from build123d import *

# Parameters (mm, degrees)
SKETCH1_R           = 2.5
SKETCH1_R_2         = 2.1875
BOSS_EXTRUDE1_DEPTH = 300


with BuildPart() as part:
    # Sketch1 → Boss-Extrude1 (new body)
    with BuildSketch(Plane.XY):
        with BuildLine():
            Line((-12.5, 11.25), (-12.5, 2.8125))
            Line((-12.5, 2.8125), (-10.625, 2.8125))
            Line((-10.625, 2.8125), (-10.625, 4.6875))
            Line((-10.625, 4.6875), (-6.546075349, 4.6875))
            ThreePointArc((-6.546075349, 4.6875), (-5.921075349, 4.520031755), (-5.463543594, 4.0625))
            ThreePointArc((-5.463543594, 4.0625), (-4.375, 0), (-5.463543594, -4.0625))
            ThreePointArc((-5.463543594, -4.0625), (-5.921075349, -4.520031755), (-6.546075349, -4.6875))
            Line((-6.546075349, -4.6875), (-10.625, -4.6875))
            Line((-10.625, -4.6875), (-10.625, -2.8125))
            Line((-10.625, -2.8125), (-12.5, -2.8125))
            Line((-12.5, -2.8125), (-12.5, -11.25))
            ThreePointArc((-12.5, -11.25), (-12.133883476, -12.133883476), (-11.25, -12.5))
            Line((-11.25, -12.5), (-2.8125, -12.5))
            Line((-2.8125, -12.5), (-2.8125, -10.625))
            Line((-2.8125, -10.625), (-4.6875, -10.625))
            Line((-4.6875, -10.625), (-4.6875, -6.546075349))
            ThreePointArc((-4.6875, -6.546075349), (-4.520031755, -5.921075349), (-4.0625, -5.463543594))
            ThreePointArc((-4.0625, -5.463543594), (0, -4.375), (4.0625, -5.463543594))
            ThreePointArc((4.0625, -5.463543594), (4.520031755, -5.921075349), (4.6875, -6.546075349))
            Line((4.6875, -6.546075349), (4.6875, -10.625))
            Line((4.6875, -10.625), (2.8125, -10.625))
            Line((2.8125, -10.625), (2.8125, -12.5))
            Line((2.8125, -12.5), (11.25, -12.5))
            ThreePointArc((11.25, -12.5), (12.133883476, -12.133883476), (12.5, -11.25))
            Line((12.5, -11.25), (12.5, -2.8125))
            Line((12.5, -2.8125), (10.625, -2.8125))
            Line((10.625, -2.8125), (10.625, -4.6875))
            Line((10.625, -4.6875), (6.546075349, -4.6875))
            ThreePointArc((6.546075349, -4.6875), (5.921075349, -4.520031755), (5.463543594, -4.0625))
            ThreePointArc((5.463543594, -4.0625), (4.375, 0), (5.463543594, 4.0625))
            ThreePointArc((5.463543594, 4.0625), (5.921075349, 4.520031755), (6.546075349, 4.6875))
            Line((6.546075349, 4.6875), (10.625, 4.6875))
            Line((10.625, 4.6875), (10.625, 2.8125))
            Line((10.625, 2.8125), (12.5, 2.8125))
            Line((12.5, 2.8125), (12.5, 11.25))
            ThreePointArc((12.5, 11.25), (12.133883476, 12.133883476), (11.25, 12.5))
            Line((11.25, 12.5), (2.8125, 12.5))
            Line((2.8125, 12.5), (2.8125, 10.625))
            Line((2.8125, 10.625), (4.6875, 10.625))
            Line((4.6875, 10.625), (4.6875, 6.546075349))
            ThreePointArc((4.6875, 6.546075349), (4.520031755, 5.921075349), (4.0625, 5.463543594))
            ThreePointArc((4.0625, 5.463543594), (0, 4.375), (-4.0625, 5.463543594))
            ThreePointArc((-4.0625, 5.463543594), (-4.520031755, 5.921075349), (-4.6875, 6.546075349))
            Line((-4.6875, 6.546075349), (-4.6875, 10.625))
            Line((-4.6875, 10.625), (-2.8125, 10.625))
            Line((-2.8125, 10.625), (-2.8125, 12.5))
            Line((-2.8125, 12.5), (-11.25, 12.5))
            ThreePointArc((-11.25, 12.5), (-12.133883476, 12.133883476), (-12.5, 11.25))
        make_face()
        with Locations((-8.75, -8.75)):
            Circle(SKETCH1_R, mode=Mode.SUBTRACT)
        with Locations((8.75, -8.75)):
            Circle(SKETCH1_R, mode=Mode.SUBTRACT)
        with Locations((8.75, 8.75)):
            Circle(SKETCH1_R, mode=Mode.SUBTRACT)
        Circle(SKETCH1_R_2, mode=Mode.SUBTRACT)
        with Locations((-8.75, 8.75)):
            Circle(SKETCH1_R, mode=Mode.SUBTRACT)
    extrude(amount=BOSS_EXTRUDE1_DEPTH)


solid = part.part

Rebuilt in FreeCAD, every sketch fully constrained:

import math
import FreeCAD as App
import Part
import Sketcher

V = App.Vector
Q = App.Units.Quantity

doc = App.newDocument("Part")
body = doc.addObject("PartDesign::Body", "Body")

sketch1 = body.newObject("Sketcher::SketchObject", "Sketch")
sketch1.AttachmentSupport = (doc.getObject("XY_Plane"), [""])
sketch1.MapMode = "FlatFace"
sketch1.addGeometry(Part.LineSegment(V(-12.5, 11.2, 0), V(-12.5, 2.8, 0)), False)
sketch1.addGeometry(Part.LineSegment(V(-12.5, 2.8, 0), V(-10.6, 2.8, 0)), False)
sketch1.addGeometry(Part.LineSegment(V(-10.6, 2.8, 0), V(-10.6, 4.7, 0)), False)
sketch1.addGeometry(Part.LineSegment(V(-10.6, 4.7, 0), V(-6.5, 4.7, 0)), False)
sketch1.addGeometry(Part.ArcOfCircle(Part.Circle(V(-6.5, 3.4, 0), V(0, 0, 1), 1.2), math.radians(30), math.radians(90)), False)
sketch1.addGeometry(Part.ArcOfCircle(Part.Circle(V(-12.5, 0, 0), V(0, 0, 1), 8.1), math.radians(-30), math.radians(30)), False)
sketch1.addGeometry(Part.ArcOfCircle(Part.Circle(V(-6.5, -3.4, 0), V(0, 0, 1), 1.2), math.radians(-90), math.radians(-30)), False)
sketch1.addGeometry(Part.LineSegment(V(-6.5, -4.7, 0), V(-10.6, -4.7, 0)), False)
sketch1.addGeometry(Part.LineSegment(V(-10.6, -4.7, 0), V(-10.6, -2.8, 0)), False)
sketch1.addGeometry(Part.LineSegment(V(-10.6, -2.8, 0), V(-12.5, -2.8, 0)), False)
sketch1.addGeometry(Part.LineSegment(V(-12.5, -2.8, 0), V(-12.5, -11.2, 0)), False)
sketch1.addGeometry(Part.ArcOfCircle(Part.Circle(V(-11.2, -11.2, 0), V(0, 0, 1), 1.3), math.radians(-180), math.radians(-90)), False)
sketch1.addGeometry(Part.LineSegment(V(-11.2, -12.5, 0), V(-2.8, -12.5, 0)), False)
sketch1.addGeometry(Part.LineSegment(V(-2.8, -12.5, 0), V(-2.8, -10.6, 0)), False)
sketch1.addGeometry(Part.LineSegment(V(-2.8, -10.6, 0), V(-4.7, -10.6, 0)), False)
sketch1.addGeometry(Part.LineSegment(V(-4.7, -10.6, 0), V(-4.7, -6.5, 0)), False)
sketch1.addGeometry(Part.ArcOfCircle(Part.Circle(V(-3.4, -6.5, 0), V(0, 0, 1), 1.2), math.radians(120), math.radians(180)), False)
sketch1.addGeometry(Part.ArcOfCircle(Part.Circle(V(0, -12.5, 0), V(0, 0, 1), 8.1), math.radians(60), math.radians(120)), False)
sketch1.addGeometry(Part.ArcOfCircle(Part.Circle(V(3.4, -6.5, 0), V(0, 0, 1), 1.2), math.radians(0), math.radians(60)), False)
sketch1.addGeometry(Part.LineSegment(V(4.7, -6.5, 0), V(4.7, -10.6, 0)), False)
sketch1.addGeometry(Part.LineSegment(V(4.7, -10.6, 0), V(2.8, -10.6, 0)), False)
sketch1.addGeometry(Part.LineSegment(V(2.8, -10.6, 0), V(2.8, -12.5, 0)), False)
sketch1.addGeometry(Part.LineSegment(V(2.8, -12.5, 0), V(11.2, -12.5, 0)), False)
sketch1.addGeometry(Part.ArcOfCircle(Part.Circle(V(11.2, -11.2, 0), V(0, 0, 1), 1.3), math.radians(-90), math.radians(0)), False)
sketch1.addGeometry(Part.LineSegment(V(12.5, -11.2, 0), V(12.5, -2.8, 0)), False)
sketch1.addGeometry(Part.LineSegment(V(12.5, -2.8, 0), V(10.6, -2.8, 0)), False)
sketch1.addGeometry(Part.LineSegment(V(10.6, -2.8, 0), V(10.6, -4.7, 0)), False)
sketch1.addGeometry(Part.LineSegment(V(10.6, -4.7, 0), V(6.5, -4.7, 0)), False)
sketch1.addGeometry(Part.ArcOfCircle(Part.Circle(V(6.5, -3.4, 0), V(0, 0, 1), 1.2), math.radians(-150), math.radians(-90)), False)
sketch1.addGeometry(Part.ArcOfCircle(Part.Circle(V(12.5, 0, 0), V(0, 0, 1), 8.1), math.radians(150), math.radians(210)), False)
sketch1.addGeometry(Part.ArcOfCircle(Part.Circle(V(6.5, 3.4, 0), V(0, 0, 1), 1.2), math.radians(90), math.radians(150)), False)
sketch1.addGeometry(Part.LineSegment(V(6.5, 4.7, 0), V(10.6, 4.7, 0)), False)
sketch1.addGeometry(Part.LineSegment(V(10.6, 4.7, 0), V(10.6, 2.8, 0)), False)
sketch1.addGeometry(Part.LineSegment(V(10.6, 2.8, 0), V(12.5, 2.8, 0)), False)
sketch1.addGeometry(Part.LineSegment(V(12.5, 2.8, 0), V(12.5, 11.2, 0)), False)
sketch1.addGeometry(Part.ArcOfCircle(Part.Circle(V(11.2, 11.2, 0), V(0, 0, 1), 1.3), math.radians(0), math.radians(90)), False)
sketch1.addGeometry(Part.LineSegment(V(11.2, 12.5, 0), V(2.8, 12.5, 0)), False)
sketch1.addGeometry(Part.LineSegment(V(2.8, 12.5, 0), V(2.8, 10.6, 0)), False)
sketch1.addGeometry(Part.LineSegment(V(2.8, 10.6, 0), V(4.7, 10.6, 0)), False)
sketch1.addGeometry(Part.LineSegment(V(4.7, 10.6, 0), V(4.7, 6.5, 0)), False)
sketch1.addGeometry(Part.ArcOfCircle(Part.Circle(V(3.4, 6.5, 0), V(0, 0, 1), 1.2), math.radians(-60), math.radians(0)), False)
sketch1.addGeometry(Part.ArcOfCircle(Part.Circle(V(0, 12.5, 0), V(0, 0, 1), 8.1), math.radians(-120), math.radians(-60)), False)
sketch1.addGeometry(Part.ArcOfCircle(Part.Circle(V(-3.4, 6.5, 0), V(0, 0, 1), 1.2), math.radians(180), math.radians(240)), False)
sketch1.addGeometry(Part.LineSegment(V(-4.7, 6.5, 0), V(-4.7, 10.6, 0)), False)
sketch1.addGeometry(Part.LineSegment(V(-4.7, 10.6, 0), V(-2.8, 10.6, 0)), False)
sketch1.addGeometry(Part.LineSegment(V(-2.8, 10.6, 0), V(-2.8, 12.5, 0)), False)
sketch1.addGeometry(Part.LineSegment(V(-2.8, 12.5, 0), V(-11.2, 12.5, 0)), False)
sketch1.addGeometry(Part.ArcOfCircle(Part.Circle(V(-11.2, 11.2, 0), V(0, 0, 1), 1.3), math.radians(90), math.radians(180)), False)
sketch1.addGeometry(Part.Circle(V(-8.8, -8.8, 0), V(0, 0, 1), 2.5), False)
sketch1.addGeometry(Part.Circle(V(8.8, -8.8, 0), V(0, 0, 1), 2.5), False)
sketch1.addGeometry(Part.Circle(V(-8.8, 8.8, 0), V(0, 0, 1), 2.5), False)
sketch1.addGeometry(Part.Circle(V(0, 0, 0), V(0, 0, 1), 2.2), False)
sketch1.addGeometry(Part.Circle(V(8.8, 8.8, 0), V(0, 0, 1), 2.5), False)
sketch1.addConstraint(Sketcher.Constraint("Coincident", 0, 2, 1, 1))
sketch1.addConstraint(Sketcher.Constraint("Coincident", 1, 2, 2, 1))
sketch1.addConstraint(Sketcher.Constraint("Coincident", 2, 2, 3, 1))
sketch1.addConstraint(Sketcher.Constraint("Tangent", 3, 2, 4, 2))
sketch1.addConstraint(Sketcher.Constraint("Tangent", 4, 1, 5, 2))
sketch1.addConstraint(Sketcher.Constraint("Tangent", 5, 1, 6, 2))
sketch1.addConstraint(Sketcher.Constraint("Tangent", 6, 1, 7, 1))
sketch1.addConstraint(Sketcher.Constraint("Coincident", 7, 2, 8, 1))
sketch1.addConstraint(Sketcher.Constraint("Coincident", 8, 2, 9, 1))
sketch1.addConstraint(Sketcher.Constraint("Coincident", 9, 2, 10, 1))
sketch1.addConstraint(Sketcher.Constraint("Tangent", 10, 2, 11, 1))
sketch1.addConstraint(Sketcher.Constraint("Tangent", 11, 2, 12, 1))
sketch1.addConstraint(Sketcher.Constraint("Coincident", 12, 2, 13, 1))
sketch1.addConstraint(Sketcher.Constraint("Coincident", 13, 2, 14, 1))
sketch1.addConstraint(Sketcher.Constraint("Coincident", 14, 2, 15, 1))
sketch1.addConstraint(Sketcher.Constraint("Tangent", 15, 2, 16, 2))
sketch1.addConstraint(Sketcher.Constraint("Tangent", 16, 1, 17, 2))
sketch1.addConstraint(Sketcher.Constraint("Tangent", 17, 1, 18, 2))
sketch1.addConstraint(Sketcher.Constraint("Tangent", 18, 1, 19, 1))
sketch1.addConstraint(Sketcher.Constraint("Coincident", 19, 2, 20, 1))
sketch1.addConstraint(Sketcher.Constraint("Coincident", 20, 2, 21, 1))
sketch1.addConstraint(Sketcher.Constraint("Coincident", 21, 2, 22, 1))
sketch1.addConstraint(Sketcher.Constraint("Tangent", 22, 2, 23, 1))
sketch1.addConstraint(Sketcher.Constraint("Tangent", 23, 2, 24, 1))
sketch1.addConstraint(Sketcher.Constraint("Coincident", 24, 2, 25, 1))
sketch1.addConstraint(Sketcher.Constraint("Coincident", 25, 2, 26, 1))
sketch1.addConstraint(Sketcher.Constraint("Coincident", 26, 2, 27, 1))
sketch1.addConstraint(Sketcher.Constraint("Tangent", 27, 2, 28, 2))
sketch1.addConstraint(Sketcher.Constraint("Tangent", 28, 1, 29, 2))
sketch1.addConstraint(Sketcher.Constraint("Tangent", 29, 1, 30, 2))
sketch1.addConstraint(Sketcher.Constraint("Tangent", 30, 1, 31, 1))
sketch1.addConstraint(Sketcher.Constraint("Coincident", 31, 2, 32, 1))
sketch1.addConstraint(Sketcher.Constraint("Coincident", 32, 2, 33, 1))
sketch1.addConstraint(Sketcher.Constraint("Coincident", 33, 2, 34, 1))
sketch1.addConstraint(Sketcher.Constraint("Tangent", 34, 2, 35, 1))
sketch1.addConstraint(Sketcher.Constraint("Tangent", 35, 2, 36, 1))
sketch1.addConstraint(Sketcher.Constraint("Coincident", 36, 2, 37, 1))
sketch1.addConstraint(Sketcher.Constraint("Coincident", 37, 2, 38, 1))
sketch1.addConstraint(Sketcher.Constraint("Coincident", 38, 2, 39, 1))
sketch1.addConstraint(Sketcher.Constraint("Tangent", 39, 2, 40, 2))
sketch1.addConstraint(Sketcher.Constraint("Tangent", 40, 1, 41, 2))
sketch1.addConstraint(Sketcher.Constraint("Tangent", 41, 1, 42, 2))
sketch1.addConstraint(Sketcher.Constraint("Tangent", 42, 1, 43, 1))
sketch1.addConstraint(Sketcher.Constraint("Coincident", 43, 2, 44, 1))
sketch1.addConstraint(Sketcher.Constraint("Coincident", 44, 2, 45, 1))
sketch1.addConstraint(Sketcher.Constraint("Coincident", 45, 2, 46, 1))
sketch1.addConstraint(Sketcher.Constraint("Tangent", 46, 2, 47, 1))
sketch1.addConstraint(Sketcher.Constraint("Tangent", 47, 2, 0, 1))
sketch1.addConstraint(Sketcher.Constraint("Vertical", 0))
sketch1.addConstraint(Sketcher.Constraint("Horizontal", 1))
sketch1.addConstraint(Sketcher.Constraint("Vertical", 2))
sketch1.addConstraint(Sketcher.Constraint("Horizontal", 3))
sketch1.addConstraint(Sketcher.Constraint("Horizontal", 7))
sketch1.addConstraint(Sketcher.Constraint("Vertical", 8))
sketch1.addConstraint(Sketcher.Constraint("Horizontal", 9))
sketch1.addConstraint(Sketcher.Constraint("Vertical", 10))
sketch1.addConstraint(Sketcher.Constraint("Horizontal", 12))
sketch1.addConstraint(Sketcher.Constraint("Vertical", 13))
sketch1.addConstraint(Sketcher.Constraint("Horizontal", 14))
sketch1.addConstraint(Sketcher.Constraint("Vertical", 15))
sketch1.addConstraint(Sketcher.Constraint("Vertical", 19))
sketch1.addConstraint(Sketcher.Constraint("Horizontal", 20))
sketch1.addConstraint(Sketcher.Constraint("Vertical", 21))
sketch1.addConstraint(Sketcher.Constraint("Horizontal", 22))
sketch1.addConstraint(Sketcher.Constraint("Vertical", 24))
sketch1.addConstraint(Sketcher.Constraint("Horizontal", 25))
sketch1.addConstraint(Sketcher.Constraint("Vertical", 26))
sketch1.addConstraint(Sketcher.Constraint("Horizontal", 27))
sketch1.addConstraint(Sketcher.Constraint("Horizontal", 31))
sketch1.addConstraint(Sketcher.Constraint("Vertical", 32))
sketch1.addConstraint(Sketcher.Constraint("Horizontal", 33))
sketch1.addConstraint(Sketcher.Constraint("Vertical", 34))
sketch1.addConstraint(Sketcher.Constraint("Horizontal", 36))
sketch1.addConstraint(Sketcher.Constraint("Vertical", 37))
sketch1.addConstraint(Sketcher.Constraint("Horizontal", 38))
sketch1.addConstraint(Sketcher.Constraint("Vertical", 39))
sketch1.addConstraint(Sketcher.Constraint("Vertical", 43))
sketch1.addConstraint(Sketcher.Constraint("Horizontal", 44))
sketch1.addConstraint(Sketcher.Constraint("Vertical", 45))
sketch1.addConstraint(Sketcher.Constraint("Horizontal", 46))
sketch1.addConstraint(Sketcher.Constraint("Coincident", 51, 3, -1, 1))
sketch1.addConstraint(Sketcher.Constraint("Equal", 4, 6))
sketch1.addConstraint(Sketcher.Constraint("Equal", 6, 11))
sketch1.addConstraint(Sketcher.Constraint("Equal", 11, 16))
sketch1.addConstraint(Sketcher.Constraint("Equal", 5, 17))
sketch1.addConstraint(Sketcher.Constraint("Equal", 16, 18))
sketch1.addConstraint(Sketcher.Constraint("Equal", 18, 23))
sketch1.addConstraint(Sketcher.Constraint("Equal", 23, 28))
sketch1.addConstraint(Sketcher.Constraint("Equal", 17, 29))
sketch1.addConstraint(Sketcher.Constraint("Equal", 28, 30))
sketch1.addConstraint(Sketcher.Constraint("Equal", 30, 35))
sketch1.addConstraint(Sketcher.Constraint("Equal", 35, 40))
sketch1.addConstraint(Sketcher.Constraint("Equal", 29, 41))
sketch1.addConstraint(Sketcher.Constraint("Equal", 40, 42))
sketch1.addConstraint(Sketcher.Constraint("Equal", 42, 47))
sketch1.addConstraint(Sketcher.Constraint("Equal", 48, 49))
sketch1.addConstraint(Sketcher.Constraint("Equal", 49, 50))
sketch1.addConstraint(Sketcher.Constraint("Equal", 50, 52))
sketch1.addConstraint(Sketcher.Constraint("Symmetric", 4, 3, 28, 3, -1, 1))
sketch1.addConstraint(Sketcher.Constraint("Symmetric", 6, 3, 30, 3, -1, 1))
sketch1.addConstraint(Sketcher.Constraint("Symmetric", 11, 3, 35, 3, -1, 1))
sketch1.addConstraint(Sketcher.Constraint("Symmetric", 16, 3, 40, 3, -1, 1))
sketch1.addConstraint(Sketcher.Constraint("Symmetric", 18, 3, 42, 3, -1, 1))
sketch1.addConstraint(Sketcher.Constraint("Symmetric", 23, 3, 47, 3, -1, 1))
sketch1.addConstraint(Sketcher.Constraint("Symmetric", 49, 3, 50, 3, -1, 1))
sketch1.addConstraint(Sketcher.Constraint("Symmetric", 48, 3, 52, 3, -1, 1))
sketch1.addConstraint(Sketcher.Constraint("Symmetric", 1, 2, 25, 2, -1, 1))
sketch1.addConstraint(Sketcher.Constraint("Symmetric", 8, 2, 32, 2, -1, 1))
sketch1.addConstraint(Sketcher.Constraint("Symmetric", 13, 2, 37, 2, -1, 1))
sketch1.addConstraint(Sketcher.Constraint("Symmetric", 20, 2, 44, 2, -1, 1))
sketch1.addConstraint(Sketcher.Constraint("Symmetric", 16, 3, 18, 3, -2))
sketch1.addConstraint(Sketcher.Constraint("Symmetric", 11, 3, 23, 3, -2))
sketch1.addConstraint(Sketcher.Constraint("Symmetric", 6, 3, 28, 3, -2))
sketch1.addConstraint(Sketcher.Constraint("Symmetric", 48, 3, 49, 3, -2))
sketch1.addConstraint(Sketcher.Constraint("Symmetric", 13, 2, 20, 2, -2))
sketch1.addConstraint(Sketcher.Constraint("Symmetric", 8, 2, 25, 2, -2))
sketch1.addConstraint(Sketcher.Constraint("Horizontal", 17, 3, 11, 2))
sketch1.addConstraint(Sketcher.Constraint("Vertical", 5, 3, 0, 2))
sketch1.addConstraint(Sketcher.Constraint("Equal", 9, 14))
sketch1.addConstraint(Sketcher.Constraint("Equal", 46, 0))
sketch1.addConstraint(Sketcher.Constraint("Equal", 44, 2))
sketch1.addConstraint(Sketcher.Constraint("Equal", 8, 13))
sketch1.addConstraint(Sketcher.Constraint("Equal", 31, 15))
sketch1.addConstraint(Sketcher.Constraint("Diameter", 48, Q("5 mm")))
sketch1.addConstraint(Sketcher.Constraint("Radius", 4, Q("1.25 mm")))
sketch1.addConstraint(Sketcher.Constraint("Diameter", 51, Q("4.375 mm")))
sketch1.addConstraint(Sketcher.Constraint("Radius", 5, Q("8.125 mm")))
sketch1.addConstraint(Sketcher.Constraint("DistanceX", 5, 3, -1, 1, Q("12.5 mm")))
sketch1.addConstraint(Sketcher.Constraint("DistanceX", 1, 1, 1, 2, Q("1.875 mm")))
sketch1.addConstraint(Sketcher.Constraint("DistanceX", 48, 3, -1, 1, Q("8.75 mm")))
sketch1.addConstraint(Sketcher.Constraint("DistanceY", 48, 3, -1, 1, Q("8.75 mm")))
sketch1.addConstraint(Sketcher.Constraint("DistanceX", 12, 1, 12, 2, Q("8.4375 mm")))
pad1 = body.newObject("PartDesign::Pad", "Pad")
pad1.Profile = sketch1
pad1.Length = 300

doc.recompute()
